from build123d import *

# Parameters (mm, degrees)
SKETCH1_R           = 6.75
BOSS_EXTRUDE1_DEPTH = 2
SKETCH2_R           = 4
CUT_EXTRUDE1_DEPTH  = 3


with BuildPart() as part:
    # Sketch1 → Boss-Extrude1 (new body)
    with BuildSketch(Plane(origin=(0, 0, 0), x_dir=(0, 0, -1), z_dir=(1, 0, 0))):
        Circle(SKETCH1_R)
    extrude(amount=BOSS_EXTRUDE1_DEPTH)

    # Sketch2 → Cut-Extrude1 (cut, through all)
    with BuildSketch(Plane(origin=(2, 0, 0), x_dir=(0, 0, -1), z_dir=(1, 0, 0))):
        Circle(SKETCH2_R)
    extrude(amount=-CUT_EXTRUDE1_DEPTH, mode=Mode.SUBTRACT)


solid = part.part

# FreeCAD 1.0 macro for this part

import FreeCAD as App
import Part
import Sketcher

V = App.Vector
Q = App.Units.Quantity

doc = App.newDocument("Part")
params = doc.addObject("Spreadsheet::Sheet", "Params")
for row, (alias, value) in enumerate([
    ("sketch1_diameter", "13.5 mm"),
    ("pad1_length", "2 mm"),
    ("sketch2_diameter", "8 mm"),
], start=1):
    params.set(f"A{row}", alias)
    params.set(f"B{row}", "=" + value)
    params.setAlias(f"B{row}", alias)

body = doc.addObject("PartDesign::Body", "Body")

# Sketch on YZ plane
sketch1 = doc.addObject("Sketcher::SketchObject", "Sketch")
body.addObject(sketch1)
sketch1.AttachmentSupport = (doc.YZ_Plane, [""])
sketch1.MapMode = "FlatFace"
sketch1.addGeometry(Part.Circle(V(0, 0, 0), V(0, 0, 1), 7), False)
sketch1.addConstraint([
    Sketcher.Constraint("Coincident", 0, 3, -1, 1),
    Sketcher.Constraint("Diameter", 0, Q("13.5 mm")),
])
sketch1.setExpression("Constraints[1]", "Params.sketch1_diameter")
pad1 = doc.addObject("PartDesign::Pad", "Pad")
body.addObject(pad1)
pad1.Profile = sketch1
pad1.setExpression("Length", "Params.pad1_length")

# Sketch on YZ plane
sketch2 = doc.addObject("Sketcher::SketchObject", "Sketch001")
body.addObject(sketch2)
sketch2.AttachmentSupport = (doc.YZ_Plane, [""])
sketch2.MapMode = "FlatFace"
sketch2.AttachmentOffset = App.Placement(V(0, 0, 2), App.Rotation())
sketch2.addGeometry(Part.Circle(V(0, 0, 0), V(0, 0, 1), 4), False)
sketch2.addConstraint([
    Sketcher.Constraint("Coincident", 0, 3, -1, 1),
    Sketcher.Constraint("Diameter", 0, Q("8 mm")),
])
sketch2.setExpression("Constraints[1]", "Params.sketch2_diameter")
pocket1 = doc.addObject("PartDesign::Pocket", "Pocket")
body.addObject(pocket1)
pocket1.Profile = sketch2
pocket1.Type = "ThroughAll"

doc.recompute()
